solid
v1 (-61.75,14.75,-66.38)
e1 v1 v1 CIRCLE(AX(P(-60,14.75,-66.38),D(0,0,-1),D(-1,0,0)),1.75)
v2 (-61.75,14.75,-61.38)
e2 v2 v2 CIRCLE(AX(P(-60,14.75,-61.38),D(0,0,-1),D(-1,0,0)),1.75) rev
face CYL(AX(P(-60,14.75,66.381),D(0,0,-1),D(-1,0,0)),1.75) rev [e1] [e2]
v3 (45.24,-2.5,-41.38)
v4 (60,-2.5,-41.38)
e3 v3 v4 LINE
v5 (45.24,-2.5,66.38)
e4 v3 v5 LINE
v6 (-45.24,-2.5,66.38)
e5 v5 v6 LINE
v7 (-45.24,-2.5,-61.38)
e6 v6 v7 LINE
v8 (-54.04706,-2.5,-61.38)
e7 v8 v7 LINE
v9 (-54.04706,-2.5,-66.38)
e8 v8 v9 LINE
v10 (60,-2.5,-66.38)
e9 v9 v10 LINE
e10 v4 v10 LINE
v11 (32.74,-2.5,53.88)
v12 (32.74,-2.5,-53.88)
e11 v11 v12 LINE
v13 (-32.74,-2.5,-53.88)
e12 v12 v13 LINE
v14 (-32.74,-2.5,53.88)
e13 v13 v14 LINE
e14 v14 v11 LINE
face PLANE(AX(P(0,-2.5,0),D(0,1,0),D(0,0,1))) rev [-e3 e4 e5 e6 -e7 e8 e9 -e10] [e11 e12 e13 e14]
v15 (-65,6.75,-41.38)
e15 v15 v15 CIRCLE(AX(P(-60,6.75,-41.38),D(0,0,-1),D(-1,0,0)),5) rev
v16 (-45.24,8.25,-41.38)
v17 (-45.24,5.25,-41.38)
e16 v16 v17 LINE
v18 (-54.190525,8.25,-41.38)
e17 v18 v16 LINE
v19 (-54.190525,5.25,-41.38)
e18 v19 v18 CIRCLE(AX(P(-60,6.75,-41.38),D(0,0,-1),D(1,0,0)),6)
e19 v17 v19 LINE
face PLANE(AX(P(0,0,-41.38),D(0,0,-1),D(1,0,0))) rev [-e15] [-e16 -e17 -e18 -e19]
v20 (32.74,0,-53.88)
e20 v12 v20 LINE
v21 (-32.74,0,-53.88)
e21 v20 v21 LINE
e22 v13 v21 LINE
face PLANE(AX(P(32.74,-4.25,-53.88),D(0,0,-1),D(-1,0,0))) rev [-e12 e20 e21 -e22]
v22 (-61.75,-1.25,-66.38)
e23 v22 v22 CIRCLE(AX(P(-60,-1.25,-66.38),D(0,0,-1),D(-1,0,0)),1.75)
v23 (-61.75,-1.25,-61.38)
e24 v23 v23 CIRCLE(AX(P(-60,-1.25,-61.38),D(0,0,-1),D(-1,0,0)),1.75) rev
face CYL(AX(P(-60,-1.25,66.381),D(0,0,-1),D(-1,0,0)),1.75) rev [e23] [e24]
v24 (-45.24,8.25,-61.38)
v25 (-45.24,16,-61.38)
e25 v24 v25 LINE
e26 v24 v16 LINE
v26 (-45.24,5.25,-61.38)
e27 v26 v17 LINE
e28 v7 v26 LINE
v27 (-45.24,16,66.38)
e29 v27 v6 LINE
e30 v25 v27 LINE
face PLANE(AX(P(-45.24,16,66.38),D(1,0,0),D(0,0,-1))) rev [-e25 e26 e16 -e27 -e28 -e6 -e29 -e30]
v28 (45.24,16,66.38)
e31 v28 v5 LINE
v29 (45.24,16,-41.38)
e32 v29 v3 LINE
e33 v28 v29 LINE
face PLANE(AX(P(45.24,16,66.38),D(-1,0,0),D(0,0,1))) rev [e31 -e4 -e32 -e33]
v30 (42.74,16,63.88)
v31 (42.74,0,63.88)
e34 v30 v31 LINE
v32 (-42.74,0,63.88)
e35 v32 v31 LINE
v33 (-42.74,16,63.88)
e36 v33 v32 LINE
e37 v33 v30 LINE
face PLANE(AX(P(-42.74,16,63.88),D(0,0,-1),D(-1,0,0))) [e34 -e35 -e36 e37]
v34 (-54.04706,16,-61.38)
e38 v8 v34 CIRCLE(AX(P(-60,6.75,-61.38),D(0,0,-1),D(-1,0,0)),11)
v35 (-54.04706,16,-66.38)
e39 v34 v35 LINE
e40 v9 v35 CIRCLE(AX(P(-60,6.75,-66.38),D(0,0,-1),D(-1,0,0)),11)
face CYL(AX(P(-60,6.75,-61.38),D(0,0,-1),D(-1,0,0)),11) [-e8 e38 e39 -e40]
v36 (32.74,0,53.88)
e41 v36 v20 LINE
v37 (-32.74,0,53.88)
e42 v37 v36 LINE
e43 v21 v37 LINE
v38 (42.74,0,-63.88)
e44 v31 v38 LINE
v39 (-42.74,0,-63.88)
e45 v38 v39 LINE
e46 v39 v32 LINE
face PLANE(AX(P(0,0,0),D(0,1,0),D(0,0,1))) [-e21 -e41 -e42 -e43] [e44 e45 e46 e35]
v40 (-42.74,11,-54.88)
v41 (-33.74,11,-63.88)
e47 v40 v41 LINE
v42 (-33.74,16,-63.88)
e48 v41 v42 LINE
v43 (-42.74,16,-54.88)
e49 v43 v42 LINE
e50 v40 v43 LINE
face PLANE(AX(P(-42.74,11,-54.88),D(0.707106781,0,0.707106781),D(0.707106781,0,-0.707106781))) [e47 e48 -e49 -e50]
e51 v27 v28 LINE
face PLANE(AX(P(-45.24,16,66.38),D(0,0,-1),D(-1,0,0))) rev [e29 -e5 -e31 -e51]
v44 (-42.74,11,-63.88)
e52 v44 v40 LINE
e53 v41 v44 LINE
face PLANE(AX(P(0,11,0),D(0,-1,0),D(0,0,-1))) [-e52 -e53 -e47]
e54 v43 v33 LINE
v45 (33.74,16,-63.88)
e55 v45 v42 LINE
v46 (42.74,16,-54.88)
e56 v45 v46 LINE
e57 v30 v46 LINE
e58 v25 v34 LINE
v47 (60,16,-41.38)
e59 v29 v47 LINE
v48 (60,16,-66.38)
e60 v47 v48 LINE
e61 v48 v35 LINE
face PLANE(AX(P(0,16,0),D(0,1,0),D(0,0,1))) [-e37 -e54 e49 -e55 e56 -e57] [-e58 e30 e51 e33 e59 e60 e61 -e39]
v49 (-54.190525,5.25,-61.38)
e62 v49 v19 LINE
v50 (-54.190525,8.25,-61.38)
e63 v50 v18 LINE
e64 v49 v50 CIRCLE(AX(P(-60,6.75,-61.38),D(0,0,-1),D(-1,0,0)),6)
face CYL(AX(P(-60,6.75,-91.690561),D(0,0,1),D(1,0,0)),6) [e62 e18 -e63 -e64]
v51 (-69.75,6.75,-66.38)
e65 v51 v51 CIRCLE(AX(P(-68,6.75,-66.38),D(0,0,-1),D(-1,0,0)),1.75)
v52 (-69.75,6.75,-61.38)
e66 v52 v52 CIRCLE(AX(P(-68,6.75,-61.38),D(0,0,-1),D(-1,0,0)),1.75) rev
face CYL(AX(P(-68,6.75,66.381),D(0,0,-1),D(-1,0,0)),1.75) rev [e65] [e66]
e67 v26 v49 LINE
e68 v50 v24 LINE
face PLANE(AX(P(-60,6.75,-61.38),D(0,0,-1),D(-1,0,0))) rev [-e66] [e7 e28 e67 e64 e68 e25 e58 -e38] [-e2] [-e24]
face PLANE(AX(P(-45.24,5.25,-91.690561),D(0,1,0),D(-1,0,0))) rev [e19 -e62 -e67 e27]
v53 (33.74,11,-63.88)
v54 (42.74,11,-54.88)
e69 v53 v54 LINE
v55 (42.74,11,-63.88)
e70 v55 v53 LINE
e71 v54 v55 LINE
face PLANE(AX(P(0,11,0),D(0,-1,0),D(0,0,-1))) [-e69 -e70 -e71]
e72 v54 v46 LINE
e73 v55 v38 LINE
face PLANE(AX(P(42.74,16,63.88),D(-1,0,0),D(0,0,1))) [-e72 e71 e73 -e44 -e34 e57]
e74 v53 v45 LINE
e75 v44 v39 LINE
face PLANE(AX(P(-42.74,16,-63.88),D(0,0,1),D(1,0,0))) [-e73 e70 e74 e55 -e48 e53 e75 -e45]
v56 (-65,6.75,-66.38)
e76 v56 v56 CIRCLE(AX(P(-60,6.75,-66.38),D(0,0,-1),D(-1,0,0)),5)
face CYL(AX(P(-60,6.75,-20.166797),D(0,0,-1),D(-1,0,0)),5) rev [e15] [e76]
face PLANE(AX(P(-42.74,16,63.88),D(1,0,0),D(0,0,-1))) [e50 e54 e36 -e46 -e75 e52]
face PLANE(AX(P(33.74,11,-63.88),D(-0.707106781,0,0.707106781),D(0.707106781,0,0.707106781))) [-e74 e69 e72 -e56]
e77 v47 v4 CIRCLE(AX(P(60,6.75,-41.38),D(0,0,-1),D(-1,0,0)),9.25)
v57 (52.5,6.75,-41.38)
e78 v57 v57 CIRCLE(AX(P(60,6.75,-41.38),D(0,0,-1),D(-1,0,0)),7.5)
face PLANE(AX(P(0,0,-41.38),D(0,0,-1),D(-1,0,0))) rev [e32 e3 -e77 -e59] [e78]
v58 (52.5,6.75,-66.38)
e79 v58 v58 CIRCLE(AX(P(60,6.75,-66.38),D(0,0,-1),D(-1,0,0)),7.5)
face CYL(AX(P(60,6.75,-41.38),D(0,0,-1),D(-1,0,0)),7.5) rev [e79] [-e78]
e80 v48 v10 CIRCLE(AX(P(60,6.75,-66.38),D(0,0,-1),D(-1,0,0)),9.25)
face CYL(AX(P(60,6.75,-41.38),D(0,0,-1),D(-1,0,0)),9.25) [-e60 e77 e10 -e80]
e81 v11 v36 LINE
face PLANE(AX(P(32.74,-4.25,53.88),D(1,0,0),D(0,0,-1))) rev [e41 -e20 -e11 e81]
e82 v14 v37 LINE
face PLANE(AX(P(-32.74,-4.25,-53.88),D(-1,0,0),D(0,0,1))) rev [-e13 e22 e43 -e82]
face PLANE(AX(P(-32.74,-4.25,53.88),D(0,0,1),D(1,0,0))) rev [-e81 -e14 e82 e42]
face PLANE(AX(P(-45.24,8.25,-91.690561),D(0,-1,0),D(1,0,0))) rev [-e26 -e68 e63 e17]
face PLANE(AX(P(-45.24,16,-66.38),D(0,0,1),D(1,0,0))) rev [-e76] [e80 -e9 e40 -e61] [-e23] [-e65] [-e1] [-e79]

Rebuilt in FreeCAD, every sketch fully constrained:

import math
import FreeCAD as App
import Part
import Sketcher
from FreeCAD import Vector
Q = App.Units.Quantity

doc = App.newDocument("Part")
body = doc.addObject("PartDesign::Body", "Body")

# Sketch on XZ plane
sketch1 = body.newObject("Sketcher::SketchObject", "Sketch")
sketch1.AttachmentSupport = (doc.getObject("XZ_Plane"), [""])
sketch1.MapMode = "FlatFace"
sketch1.addGeometry(Part.LineSegment(Vector(-45, -66, 0), Vector(-45, 66, 0)), False)
sketch1.addGeometry(Part.LineSegment(Vector(-45, 66, 0), Vector(45, 66, 0)), False)
sketch1.addGeometry(Part.LineSegment(Vector(45, 66, 0), Vector(45, -66, 0)), False)
sketch1.addGeometry(Part.LineSegment(Vector(45, -66, 0), Vector(-45, -66, 0)), False)
sketch1.addGeometry(Part.LineSegment(Vector(43, 64, 0), Vector(-43, 64, 0)), False)
sketch1.addGeometry(Part.LineSegment(Vector(-43, 64, 0), Vector(-43, -64, 0)), False)
sketch1.addGeometry(Part.LineSegment(Vector(-43, -64, 0), Vector(43, -64, 0)), False)
sketch1.addGeometry(Part.LineSegment(Vector(43, -64, 0), Vector(43, 64, 0)), False)
sketch1.addConstraint(Sketcher.Constraint("Coincident", 0, 2, 1, 1))
sketch1.addConstraint(Sketcher.Constraint("Coincident", 1, 2, 2, 1))
sketch1.addConstraint(Sketcher.Constraint("Coincident", 2, 2, 3, 1))
sketch1.addConstraint(Sketcher.Constraint("Coincident", 3, 2, 0, 1))
sketch1.addConstraint(Sketcher.Constraint("Coincident", 4, 2, 5, 1))
sketch1.addConstraint(Sketcher.Constraint("Coincident", 5, 2, 6, 1))
sketch1.addConstraint(Sketcher.Constraint("Coincident", 6, 2, 7, 1))
sketch1.addConstraint(Sketcher.Constraint("Coincident", 7, 2, 4, 1))
sketch1.addConstraint(Sketcher.Constraint("Vertical", 0))
sketch1.addConstraint(Sketcher.Constraint("Horizontal", 1))
sketch1.addConstraint(Sketcher.Constraint("Vertical", 2))
sketch1.addConstraint(Sketcher.Constraint("Horizontal", 3))
sketch1.addConstraint(Sketcher.Constraint("Horizontal", 4))
sketch1.addConstraint(Sketcher.Constraint("Vertical", 5))
sketch1.addConstraint(Sketcher.Constraint("Horizontal", 6))
sketch1.addConstraint(Sketcher.Constraint("Vertical", 7))
sketch1.addConstraint(Sketcher.Constraint("Symmetric", 0, 2, 2, 2, -1, 1))
sketch1.addConstraint(Sketcher.Constraint("Symmetric", 4, 2, 6, 2, -1, 1))
sketch1.addConstraint(Sketcher.Constraint("DistanceX", 1, 1, 1, 2, Q("90.48 mm")))
sketch1.addConstraint(Sketcher.Constraint("DistanceX", 4, 2, 4, 1, Q("85.48 mm")))
sketch1.addConstraint(Sketcher.Constraint("DistanceY", 0, 1, 0, 2, Q("132.76 mm")))
sketch1.addConstraint(Sketcher.Constraint("DistanceY", 5, 2, 5, 1, Q("127.76 mm")))
pad1 = body.newObject("PartDesign::Pad", "Pad")
pad1.Profile = sketch1
pad1.Length = 16
pad1.Reversed = True

# Sketch on XZ plane
sketch2 = body.newObject("Sketcher::SketchObject", "Sketch001")
sketch2.AttachmentSupport = (doc.getObject("XZ_Plane"), [""])
sketch2.MapMode = "FlatFace"
sketch2.addGeometry(Part.LineSegment(Vector(-45, 66, 0), Vector(-45, -66, 0)), False)
sketch2.addGeometry(Part.LineSegment(Vector(-45, -66, 0), Vector(45, -66, 0)), False)
sketch2.addGeometry(Part.LineSegment(Vector(45, -66, 0), Vector(45, 66, 0)), False)
sketch2.addGeometry(Part.LineSegment(Vector(45, 66, 0), Vector(-45, 66, 0)), False)
sketch2.addConstraint(Sketcher.Constraint("Coincident", 0, 2, 1, 1))
sketch2.addConstraint(Sketcher.Constraint("Coincident", 1, 2, 2, 1))
sketch2.addConstraint(Sketcher.Constraint("Coincident", 2, 2, 3, 1))
sketch2.addConstraint(Sketcher.Constraint("Coincident", 3, 2, 0, 1))
sketch2.addConstraint(Sketcher.Constraint("Vertical", 0))
sketch2.addConstraint(Sketcher.Constraint("Horizontal", 1))
sketch2.addConstraint(Sketcher.Constraint("Vertical", 2))
sketch2.addConstraint(Sketcher.Constraint("Horizontal", 3))
sketch2.addConstraint(Sketcher.Constraint("Symmetric", 0, 2, 2, 2, -1, 1))
sketch2.addConstraint(Sketcher.Constraint("DistanceX", 1, 1, 1, 2, Q("90.48 mm")))
sketch2.addConstraint(Sketcher.Constraint("DistanceY", 0, 2, 0, 1, Q("132.76 mm")))
pad2 = body.newObject("PartDesign::Pad", "Pad001")
pad2.Profile = sketch2
pad2.Length = 2.5

# Sketch on XY plane
sketch3 = body.newObject("Sketcher::SketchObject", "Sketch002")
sketch3.AttachmentSupport = (doc.getObject("XY_Plane"), [""])
sketch3.MapMode = "FlatFace"
sketch3.AttachmentOffset = App.Placement(Vector(0, 0, -66.38), App.Rotation())
sketch3.addGeometry(Part.LineSegment(Vector(45, 16, 0), Vector(60, 16, 0)), False)
sketch3.addGeometry(Part.ArcOfCircle(Part.Circle(Vector(60, 7, 0), Vector(0, 0, 1), 9), math.radians(-90), math.radians(90)), False)
sketch3.addGeometry(Part.LineSegment(Vector(60, -2, 0), Vector(45, -2, 0)), False)
sketch3.addGeometry(Part.LineSegment(Vector(45, -2, 0), Vector(45, 16, 0)), False)
sketch3.addGeometry(Part.Circle(Vector(60, 7, 0), Vector(0, 0, 1), 8), False)
sketch3.addConstraint(Sketcher.Constraint("Tangent", 0, 2, 1, 2))
sketch3.addConstraint(Sketcher.Constraint("Tangent", 1, 1, 2, 1))
sketch3.addConstraint(Sketcher.Constraint("Coincident", 2, 2, 3, 1))
sketch3.addConstraint(Sketcher.Constraint("Coincident", 3, 2, 0, 1))
sketch3.addConstraint(Sketcher.Constraint("Horizontal", 0))
sketch3.addConstraint(Sketcher.Constraint("Horizontal", 2))
sketch3.addConstraint(Sketcher.Constraint("Vertical", 3))
sketch3.addConstraint(Sketcher.Constraint("Coincident", 4, 3, 1, 3))
sketch3.addConstraint(Sketcher.Constraint("Diameter", 4, Q("15 mm")))
sketch3.addConstraint(Sketcher.Constraint("Radius", 1, Q("9.25 mm")))
sketch3.addConstraint(Sketcher.Constraint("DistanceX", -1, 1, 1, 3, Q("60 mm")))
sketch3.addConstraint(Sketcher.Constraint("DistanceY", -1, 1, 0, 2, Q("16 mm")))
sketch3.addConstraint(Sketcher.Constraint("DistanceX", 0, 1, 0, 2, Q("14.76 mm")))
pad3 = body.newObject("PartDesign::Pad", "Pad002")
pad3.Profile = sketch3
pad3.Length = 25
doc.recompute()

mirrored = body.newObject("PartDesign::Mirrored", "Mirrored")
mirrored.Originals = [pad3]
mirrored.MirrorPlane = (doc.getObject("YZ_Plane"), [""])
body.Tip = mirrored

# Sketch on XY plane
sketch4 = body.newObject("Sketcher::SketchObject", "Sketch003")
sketch4.AttachmentSupport = (doc.getObject("XY_Plane"), [""])
sketch4.MapMode = "FlatFace"
sketch4.AttachmentOffset = App.Placement(Vector(0, 0, -66.38), App.Rotation())
sketch4.addGeometry(Part.Circle(Vector(-60, 7, 0), Vector(0, 0, 1), 8), False)
sketch4.addGeometry(Part.Circle(Vector(-60, 7, 0), Vector(0, 0, 1), 5), False)
sketch4.addConstraint(Sketcher.Constraint("Coincident", 1, 3, 0, 3))
sketch4.addConstraint(Sketcher.Constraint("Diameter", 0, Q("15 mm")))
sketch4.addConstraint(Sketcher.Constraint("Diameter", 1, Q("10 mm")))
sketch4.addConstraint(Sketcher.Constraint("DistanceX", 0, 3, -1, 1, Q("60 mm")))
sketch4.addConstraint(Sketcher.Constraint("DistanceY", -1, 1, 0, 3, Q("6.75 mm")))
pad4 = body.newObject("PartDesign::Pad", "Pad003")
pad4.Profile = sketch4
pad4.Length = 25

# Sketch on XY plane
sketch5 = body.newObject("Sketcher::SketchObject", "Sketch004")
sketch5.AttachmentSupport = (doc.getObject("XY_Plane"), [""])
sketch5.MapMode = "FlatFace"
sketch5.AttachmentOffset = App.Placement(Vector(0, 0, -66.38), App.Rotation())
sketch5.addGeometry(Part.Circle(Vector(-60, 7, 0), Vector(0, 0, 1), 11), False)
sketch5.addGeometry(Part.Circle(Vector(-60, 7, 0), Vector(0, 0, 1), 5), False)
sketch5.addConstraint(Sketcher.Constraint("Coincident", 1, 3, 0, 3))
sketch5.addConstraint(Sketcher.Constraint("Diameter", 0, Q("22 mm")))
sketch5.addConstraint(Sketcher.Constraint("Diameter", 1, Q("10 mm")))
sketch5.addConstraint(Sketcher.Constraint("DistanceX", 0, 3, -1, 1, Q("60 mm")))
sketch5.addConstraint(Sketcher.Constraint("DistanceY", -1, 1, 0, 3, Q("6.75 mm")))
pad5 = body.newObject("PartDesign::Pad", "Pad004")
pad5.Profile = sketch5
pad5.Length = 5

# Sketch on XY plane
sketch6 = body.newObject("Sketcher::SketchObject", "Sketch005")
sketch6.AttachmentSupport = (doc.getObject("XY_Plane"), [""])
sketch6.MapMode = "FlatFace"
sketch6.AttachmentOffset = App.Placement(Vector(0, 0, -41.38), App.Rotation())
sketch6.addGeometry(Part.Circle(Vector(-60, 6.8, 0), Vector(0, 0, 1), 5), False)
sketch6.addGeometry(Part.LineSegment(Vector(-60, -2.5, 0), Vector(-45.2, -2.5, 0)), False)
sketch6.addGeometry(Part.LineSegment(Vector(-45.2, -2.5, 0), Vector(-45.2, 5.2, 0)), False)
sketch6.addGeometry(Part.LineSegment(Vector(-45.2, 5.2, 0), Vector(-54.2, 5.2, 0)), False)
sketch6.addGeometry(Part.ArcOfCircle(Part.Circle(Vector(-60, 6.8, 0), Vector(0, 0, 1), 6), math.radians(14), math.radians(346)), False)
sketch6.addGeometry(Part.LineSegment(Vector(-54.2, 8.2, 0), Vector(-45.2, 8.2, 0)), False)
sketch6.addGeometry(Part.LineSegment(Vector(-45.2, 8.2, 0), Vector(-45.2, 16, 0)), False)
sketch6.addGeometry(Part.LineSegment(Vector(-45.2, 16, 0), Vector(-60, 16, 0)), False)
sketch6.addGeometry(Part.ArcOfCircle(Part.Circle(Vector(-60, 6.8, 0), Vector(0, 0, 1), 9.2), math.radians(90), math.radians(270)), False)
sketch6.addConstraint(Sketcher.Constraint("Coincident", 1, 2, 2, 1))
sketch6.addConstraint(Sketcher.Constraint("Coincident", 2, 2, 3, 1))
sketch6.addConstraint(Sketcher.Constraint("Coincident", 3, 2, 4, 2))
sketch6.addConstraint(Sketcher.Constraint("Coincident", 4, 1, 5, 1))
sketch6.addConstraint(Sketcher.Constraint("Coincident", 5, 2, 6, 1))
sketch6.addConstraint(Sketcher.Constraint("Coincident", 6, 2, 7, 1))
sketch6.addConstraint(Sketcher.Constraint("Tangent", 7, 2, 8, 1))
sketch6.addConstraint(Sketcher.Constraint("Tangent", 8, 2, 1, 1))
sketch6.addConstraint(Sketcher.Constraint("Horizontal", 1))
sketch6.addConstraint(Sketcher.Constraint("Vertical", 2))
sketch6.addConstraint(Sketcher.Constraint("Horizontal", 3))
sketch6.addConstraint(Sketcher.Constraint("Horizontal", 5))
sketch6.addConstraint(Sketcher.Constraint("Vertical", 6))
sketch6.addConstraint(Sketcher.Constraint("Horizontal", 7))
sketch6.addConstraint(Sketcher.Constraint("Coincident", 4, 3, 0, 3))
sketch6.addConstraint(Sketcher.Constraint("Coincident", 8, 3, 0, 3))
sketch6.addConstraint(Sketcher.Constraint("Vertical", 3, 2, 4, 1))
sketch6.addConstraint(Sketcher.Constraint("Vertical", 2, 2, 5, 2))
sketch6.addConstraint(Sketcher.Constraint("Diameter", 0, Q("10 mm")))
sketch6.addConstraint(Sketcher.Constraint("Radius", 4, Q("6 mm")))
sketch6.addConstraint(Sketcher.Constraint("Radius", 8, Q("9.25 mm")))
sketch6.addConstraint(Sketcher.Constraint("DistanceX", 0, 3, -1, 1, Q("60 mm")))
sketch6.addConstraint(Sketcher.Constraint("DistanceY", -1, 1, 6, 2, Q("16 mm")))
sketch6.addConstraint(Sketcher.Constraint("DistanceY", 3, 2, 4, 1, Q("3 mm")))
sketch6.addConstraint(Sketcher.Constraint("DistanceX", 1, 1, 1, 2, Q("14.76 mm")))
pocket1 = body.newObject("PartDesign::Pocket", "Pocket")
pocket1.Profile = sketch6
pocket1.Length = 20

# Sketch on XY plane
sketch7 = body.newObject("Sketcher::SketchObject", "Sketch006")
sketch7.AttachmentSupport = (doc.getObject("XY_Plane"), [""])
sketch7.MapMode = "FlatFace"
sketch7.AttachmentOffset = App.Placement(Vector(0, 0, -66.38), App.Rotation())
sketch7.addGeometry(Part.Circle(Vector(-60, 14.8, 0), Vector(0, 0, 1), 1.8), False)
sketch7.addConstraint(Sketcher.Constraint("Diameter", 0, Q("3.5 mm")))
sketch7.addConstraint(Sketcher.Constraint("DistanceX", 0, 3, -1, 1, Q("60 mm")))
sketch7.addConstraint(Sketcher.Constraint("DistanceY", -1, 1, 0, 3, Q("14.75 mm")))
pocket2 = body.newObject("PartDesign::Pocket", "Pocket001")
pocket2.Profile = sketch7
pocket2.Type = "UpToFirst"
pocket2.Reversed = True

# Sketch on XY plane
sketch8 = body.newObject("Sketcher::SketchObject", "Sketch007")
sketch8.AttachmentSupport = (doc.getObject("XY_Plane"), [""])
sketch8.MapMode = "FlatFace"
sketch8.AttachmentOffset = App.Placement(Vector(0, 0, -66.38), App.Rotation())
sketch8.addGeometry(Part.Circle(Vector(-68, 6.8, 0), Vector(0, 0, 1), 1.8), False)
sketch8.addConstraint(Sketcher.Constraint("Diameter", 0, Q("3.5 mm")))
sketch8.addConstraint(Sketcher.Constraint("DistanceX", 0, 3, -1, 1, Q("68 mm")))
sketch8.addConstraint(Sketcher.Constraint("DistanceY", -1, 1, 0, 3, Q("6.75 mm")))
pocket3 = body.newObject("PartDesign::Pocket", "Pocket002")
pocket3.Profile = sketch8
pocket3.Type = "UpToFirst"
pocket3.Reversed = True

# Sketch on XY plane
sketch9 = body.newObject("Sketcher::SketchObject", "Sketch008")
sketch9.AttachmentSupport = (doc.getObject("XY_Plane"), [""])
sketch9.MapMode = "FlatFace"
sketch9.AttachmentOffset = App.Placement(Vector(0, 0, -66.38), App.Rotation())
sketch9.addGeometry(Part.Circle(Vector(-60, -1.2, 0), Vector(0, 0, 1), 1.8), False)
sketch9.addConstraint(Sketcher.Constraint("Diameter", 0, Q("3.5 mm")))
sketch9.addConstraint(Sketcher.Constraint("DistanceX", 0, 3, -1, 1, Q("60 mm")))
sketch9.addConstraint(Sketcher.Constraint("DistanceY", 0, 3, -1, 1, Q("1.25 mm")))
pocket4 = body.newObject("PartDesign::Pocket", "Pocket003")
pocket4.Profile = sketch9
pocket4.Type = "UpToFirst"
pocket4.Reversed = True

# Sketch on XZ plane
sketch10 = body.newObject("Sketcher::SketchObject", "Sketch009")
sketch10.AttachmentSupport = (doc.getObject("XZ_Plane"), [""])
sketch10.MapMode = "FlatFace"
sketch10.AttachmentOffset = App.Placement(Vector(0, 0, -16), App.Rotation())
sketch10.addGeometry(Part.LineSegment(Vector(34, -64, 0), Vector(43, -55, 0)), False)
sketch10.addGeometry(Part.LineSegment(Vector(43, -55, 0), Vector(43, -64, 0)), False)
sketch10.addGeometry(Part.LineSegment(Vector(43, -64, 0), Vector(34, -64, 0)), False)
sketch10.addGeometry(Part.LineSegment(Vector(-43, -55, 0), Vector(-34, -64, 0)), False)
sketch10.addGeometry(Part.LineSegment(Vector(-34, -64, 0), Vector(-43, -64, 0)), False)
sketch10.addGeometry(Part.LineSegment(Vector(-43, -64, 0), Vector(-43, -55, 0)), False)
sketch10.addConstraint(Sketcher.Constraint("Coincident", 0, 2, 1, 1))
sketch10.addConstraint(Sketcher.Constraint("Coincident", 1, 2, 2, 1))
sketch10.addConstraint(Sketcher.Constraint("Coincident", 2, 2, 0, 1))
sketch10.addConstraint(Sketcher.Constraint("Coincident", 3, 2, 4, 1))
sketch10.addConstraint(Sketcher.Constraint("Coincident", 4, 2, 5, 1))
sketch10.addConstraint(Sketcher.Constraint("Coincident", 5, 2, 3, 1))
sketch10.addConstraint(Sketcher.Constraint("Vertical", 1))
sketch10.addConstraint(Sketcher.Constraint("Horizontal", 2))
sketch10.addConstraint(Sketcher.Constraint("Horizontal", 4))
sketch10.addConstraint(Sketcher.Constraint("Vertical", 5))
sketch10.addConstraint(Sketcher.Constraint("Symmetric", 2, 2, 3, 2, -2))
sketch10.addConstraint(Sketcher.Constraint("Symmetric", 0, 2, 5, 2, -2))
sketch10.addConstraint(Sketcher.Constraint("Perpendicular", 0, 3))
sketch10.addConstraint(Sketcher.Constraint("DistanceX", 2, 2, 2, 1, Q("9 mm")))
sketch10.addConstraint(Sketcher.Constraint("DistanceX", -1, 1, 0, 2, Q("42.74 mm")))
sketch10.addConstraint(Sketcher.Constraint("DistanceY", 0, 2, -1, 1, Q("54.88 mm")))
pad6 = body.newObject("PartDesign::Pad", "Pad005")
pad6.Profile = sketch10
pad6.Length = 5

# Sketch on XZ plane
sketch11 = body.newObject("Sketcher::SketchObject", "Sketch010")
sketch11.AttachmentSupport = (doc.getObject("XZ_Plane"), [""])
sketch11.MapMode = "FlatFace"
sketch11.addGeometry(Part.LineSegment(Vector(-33, -54, 0), Vector(-33, 54, 0)), False)
sketch11.addGeometry(Part.LineSegment(Vector(-33, 54, 0), Vector(33, 54, 0)), False)
sketch11.addGeometry(Part.LineSegment(Vector(33, 54, 0), Vector(33, -54, 0)), False)
sketch11.addGeometry(Part.LineSegment(Vector(33, -54, 0), Vector(-33, -54, 0)), False)
sketch11.addConstraint(Sketcher.Constraint("Coincident", 0, 2, 1, 1))
sketch11.addConstraint(Sketcher.Constraint("Coincident", 1, 2, 2, 1))
sketch11.addConstraint(Sketcher.Constraint("Coincident", 2, 2, 3, 1))
sketch11.addConstraint(Sketcher.Constraint("Coincident", 3, 2, 0, 1))
sketch11.addConstraint(Sketcher.Constraint("Vertical", 0))
sketch11.addConstraint(Sketcher.Constraint("Horizontal", 1))
sketch11.addConstraint(Sketcher.Constraint("Vertical", 2))
sketch11.addConstraint(Sketcher.Constraint("Horizontal", 3))
sketch11.addConstraint(Sketcher.Constraint("Symmetric", 0, 2, 2, 2, -1, 1))
sketch11.addConstraint(Sketcher.Constraint("DistanceX", 1, 1, 1, 2, Q("65.48 mm")))
sketch11.addConstraint(Sketcher.Constraint("DistanceY", 0, 1, 0, 2, Q("107.76 mm")))
pocket5 = body.newObject("PartDesign::Pocket", "Pocket004")
pocket5.Profile = sketch11
pocket5.Type = "ThroughAll"
pocket5.Reversed = True

doc.recompute()
